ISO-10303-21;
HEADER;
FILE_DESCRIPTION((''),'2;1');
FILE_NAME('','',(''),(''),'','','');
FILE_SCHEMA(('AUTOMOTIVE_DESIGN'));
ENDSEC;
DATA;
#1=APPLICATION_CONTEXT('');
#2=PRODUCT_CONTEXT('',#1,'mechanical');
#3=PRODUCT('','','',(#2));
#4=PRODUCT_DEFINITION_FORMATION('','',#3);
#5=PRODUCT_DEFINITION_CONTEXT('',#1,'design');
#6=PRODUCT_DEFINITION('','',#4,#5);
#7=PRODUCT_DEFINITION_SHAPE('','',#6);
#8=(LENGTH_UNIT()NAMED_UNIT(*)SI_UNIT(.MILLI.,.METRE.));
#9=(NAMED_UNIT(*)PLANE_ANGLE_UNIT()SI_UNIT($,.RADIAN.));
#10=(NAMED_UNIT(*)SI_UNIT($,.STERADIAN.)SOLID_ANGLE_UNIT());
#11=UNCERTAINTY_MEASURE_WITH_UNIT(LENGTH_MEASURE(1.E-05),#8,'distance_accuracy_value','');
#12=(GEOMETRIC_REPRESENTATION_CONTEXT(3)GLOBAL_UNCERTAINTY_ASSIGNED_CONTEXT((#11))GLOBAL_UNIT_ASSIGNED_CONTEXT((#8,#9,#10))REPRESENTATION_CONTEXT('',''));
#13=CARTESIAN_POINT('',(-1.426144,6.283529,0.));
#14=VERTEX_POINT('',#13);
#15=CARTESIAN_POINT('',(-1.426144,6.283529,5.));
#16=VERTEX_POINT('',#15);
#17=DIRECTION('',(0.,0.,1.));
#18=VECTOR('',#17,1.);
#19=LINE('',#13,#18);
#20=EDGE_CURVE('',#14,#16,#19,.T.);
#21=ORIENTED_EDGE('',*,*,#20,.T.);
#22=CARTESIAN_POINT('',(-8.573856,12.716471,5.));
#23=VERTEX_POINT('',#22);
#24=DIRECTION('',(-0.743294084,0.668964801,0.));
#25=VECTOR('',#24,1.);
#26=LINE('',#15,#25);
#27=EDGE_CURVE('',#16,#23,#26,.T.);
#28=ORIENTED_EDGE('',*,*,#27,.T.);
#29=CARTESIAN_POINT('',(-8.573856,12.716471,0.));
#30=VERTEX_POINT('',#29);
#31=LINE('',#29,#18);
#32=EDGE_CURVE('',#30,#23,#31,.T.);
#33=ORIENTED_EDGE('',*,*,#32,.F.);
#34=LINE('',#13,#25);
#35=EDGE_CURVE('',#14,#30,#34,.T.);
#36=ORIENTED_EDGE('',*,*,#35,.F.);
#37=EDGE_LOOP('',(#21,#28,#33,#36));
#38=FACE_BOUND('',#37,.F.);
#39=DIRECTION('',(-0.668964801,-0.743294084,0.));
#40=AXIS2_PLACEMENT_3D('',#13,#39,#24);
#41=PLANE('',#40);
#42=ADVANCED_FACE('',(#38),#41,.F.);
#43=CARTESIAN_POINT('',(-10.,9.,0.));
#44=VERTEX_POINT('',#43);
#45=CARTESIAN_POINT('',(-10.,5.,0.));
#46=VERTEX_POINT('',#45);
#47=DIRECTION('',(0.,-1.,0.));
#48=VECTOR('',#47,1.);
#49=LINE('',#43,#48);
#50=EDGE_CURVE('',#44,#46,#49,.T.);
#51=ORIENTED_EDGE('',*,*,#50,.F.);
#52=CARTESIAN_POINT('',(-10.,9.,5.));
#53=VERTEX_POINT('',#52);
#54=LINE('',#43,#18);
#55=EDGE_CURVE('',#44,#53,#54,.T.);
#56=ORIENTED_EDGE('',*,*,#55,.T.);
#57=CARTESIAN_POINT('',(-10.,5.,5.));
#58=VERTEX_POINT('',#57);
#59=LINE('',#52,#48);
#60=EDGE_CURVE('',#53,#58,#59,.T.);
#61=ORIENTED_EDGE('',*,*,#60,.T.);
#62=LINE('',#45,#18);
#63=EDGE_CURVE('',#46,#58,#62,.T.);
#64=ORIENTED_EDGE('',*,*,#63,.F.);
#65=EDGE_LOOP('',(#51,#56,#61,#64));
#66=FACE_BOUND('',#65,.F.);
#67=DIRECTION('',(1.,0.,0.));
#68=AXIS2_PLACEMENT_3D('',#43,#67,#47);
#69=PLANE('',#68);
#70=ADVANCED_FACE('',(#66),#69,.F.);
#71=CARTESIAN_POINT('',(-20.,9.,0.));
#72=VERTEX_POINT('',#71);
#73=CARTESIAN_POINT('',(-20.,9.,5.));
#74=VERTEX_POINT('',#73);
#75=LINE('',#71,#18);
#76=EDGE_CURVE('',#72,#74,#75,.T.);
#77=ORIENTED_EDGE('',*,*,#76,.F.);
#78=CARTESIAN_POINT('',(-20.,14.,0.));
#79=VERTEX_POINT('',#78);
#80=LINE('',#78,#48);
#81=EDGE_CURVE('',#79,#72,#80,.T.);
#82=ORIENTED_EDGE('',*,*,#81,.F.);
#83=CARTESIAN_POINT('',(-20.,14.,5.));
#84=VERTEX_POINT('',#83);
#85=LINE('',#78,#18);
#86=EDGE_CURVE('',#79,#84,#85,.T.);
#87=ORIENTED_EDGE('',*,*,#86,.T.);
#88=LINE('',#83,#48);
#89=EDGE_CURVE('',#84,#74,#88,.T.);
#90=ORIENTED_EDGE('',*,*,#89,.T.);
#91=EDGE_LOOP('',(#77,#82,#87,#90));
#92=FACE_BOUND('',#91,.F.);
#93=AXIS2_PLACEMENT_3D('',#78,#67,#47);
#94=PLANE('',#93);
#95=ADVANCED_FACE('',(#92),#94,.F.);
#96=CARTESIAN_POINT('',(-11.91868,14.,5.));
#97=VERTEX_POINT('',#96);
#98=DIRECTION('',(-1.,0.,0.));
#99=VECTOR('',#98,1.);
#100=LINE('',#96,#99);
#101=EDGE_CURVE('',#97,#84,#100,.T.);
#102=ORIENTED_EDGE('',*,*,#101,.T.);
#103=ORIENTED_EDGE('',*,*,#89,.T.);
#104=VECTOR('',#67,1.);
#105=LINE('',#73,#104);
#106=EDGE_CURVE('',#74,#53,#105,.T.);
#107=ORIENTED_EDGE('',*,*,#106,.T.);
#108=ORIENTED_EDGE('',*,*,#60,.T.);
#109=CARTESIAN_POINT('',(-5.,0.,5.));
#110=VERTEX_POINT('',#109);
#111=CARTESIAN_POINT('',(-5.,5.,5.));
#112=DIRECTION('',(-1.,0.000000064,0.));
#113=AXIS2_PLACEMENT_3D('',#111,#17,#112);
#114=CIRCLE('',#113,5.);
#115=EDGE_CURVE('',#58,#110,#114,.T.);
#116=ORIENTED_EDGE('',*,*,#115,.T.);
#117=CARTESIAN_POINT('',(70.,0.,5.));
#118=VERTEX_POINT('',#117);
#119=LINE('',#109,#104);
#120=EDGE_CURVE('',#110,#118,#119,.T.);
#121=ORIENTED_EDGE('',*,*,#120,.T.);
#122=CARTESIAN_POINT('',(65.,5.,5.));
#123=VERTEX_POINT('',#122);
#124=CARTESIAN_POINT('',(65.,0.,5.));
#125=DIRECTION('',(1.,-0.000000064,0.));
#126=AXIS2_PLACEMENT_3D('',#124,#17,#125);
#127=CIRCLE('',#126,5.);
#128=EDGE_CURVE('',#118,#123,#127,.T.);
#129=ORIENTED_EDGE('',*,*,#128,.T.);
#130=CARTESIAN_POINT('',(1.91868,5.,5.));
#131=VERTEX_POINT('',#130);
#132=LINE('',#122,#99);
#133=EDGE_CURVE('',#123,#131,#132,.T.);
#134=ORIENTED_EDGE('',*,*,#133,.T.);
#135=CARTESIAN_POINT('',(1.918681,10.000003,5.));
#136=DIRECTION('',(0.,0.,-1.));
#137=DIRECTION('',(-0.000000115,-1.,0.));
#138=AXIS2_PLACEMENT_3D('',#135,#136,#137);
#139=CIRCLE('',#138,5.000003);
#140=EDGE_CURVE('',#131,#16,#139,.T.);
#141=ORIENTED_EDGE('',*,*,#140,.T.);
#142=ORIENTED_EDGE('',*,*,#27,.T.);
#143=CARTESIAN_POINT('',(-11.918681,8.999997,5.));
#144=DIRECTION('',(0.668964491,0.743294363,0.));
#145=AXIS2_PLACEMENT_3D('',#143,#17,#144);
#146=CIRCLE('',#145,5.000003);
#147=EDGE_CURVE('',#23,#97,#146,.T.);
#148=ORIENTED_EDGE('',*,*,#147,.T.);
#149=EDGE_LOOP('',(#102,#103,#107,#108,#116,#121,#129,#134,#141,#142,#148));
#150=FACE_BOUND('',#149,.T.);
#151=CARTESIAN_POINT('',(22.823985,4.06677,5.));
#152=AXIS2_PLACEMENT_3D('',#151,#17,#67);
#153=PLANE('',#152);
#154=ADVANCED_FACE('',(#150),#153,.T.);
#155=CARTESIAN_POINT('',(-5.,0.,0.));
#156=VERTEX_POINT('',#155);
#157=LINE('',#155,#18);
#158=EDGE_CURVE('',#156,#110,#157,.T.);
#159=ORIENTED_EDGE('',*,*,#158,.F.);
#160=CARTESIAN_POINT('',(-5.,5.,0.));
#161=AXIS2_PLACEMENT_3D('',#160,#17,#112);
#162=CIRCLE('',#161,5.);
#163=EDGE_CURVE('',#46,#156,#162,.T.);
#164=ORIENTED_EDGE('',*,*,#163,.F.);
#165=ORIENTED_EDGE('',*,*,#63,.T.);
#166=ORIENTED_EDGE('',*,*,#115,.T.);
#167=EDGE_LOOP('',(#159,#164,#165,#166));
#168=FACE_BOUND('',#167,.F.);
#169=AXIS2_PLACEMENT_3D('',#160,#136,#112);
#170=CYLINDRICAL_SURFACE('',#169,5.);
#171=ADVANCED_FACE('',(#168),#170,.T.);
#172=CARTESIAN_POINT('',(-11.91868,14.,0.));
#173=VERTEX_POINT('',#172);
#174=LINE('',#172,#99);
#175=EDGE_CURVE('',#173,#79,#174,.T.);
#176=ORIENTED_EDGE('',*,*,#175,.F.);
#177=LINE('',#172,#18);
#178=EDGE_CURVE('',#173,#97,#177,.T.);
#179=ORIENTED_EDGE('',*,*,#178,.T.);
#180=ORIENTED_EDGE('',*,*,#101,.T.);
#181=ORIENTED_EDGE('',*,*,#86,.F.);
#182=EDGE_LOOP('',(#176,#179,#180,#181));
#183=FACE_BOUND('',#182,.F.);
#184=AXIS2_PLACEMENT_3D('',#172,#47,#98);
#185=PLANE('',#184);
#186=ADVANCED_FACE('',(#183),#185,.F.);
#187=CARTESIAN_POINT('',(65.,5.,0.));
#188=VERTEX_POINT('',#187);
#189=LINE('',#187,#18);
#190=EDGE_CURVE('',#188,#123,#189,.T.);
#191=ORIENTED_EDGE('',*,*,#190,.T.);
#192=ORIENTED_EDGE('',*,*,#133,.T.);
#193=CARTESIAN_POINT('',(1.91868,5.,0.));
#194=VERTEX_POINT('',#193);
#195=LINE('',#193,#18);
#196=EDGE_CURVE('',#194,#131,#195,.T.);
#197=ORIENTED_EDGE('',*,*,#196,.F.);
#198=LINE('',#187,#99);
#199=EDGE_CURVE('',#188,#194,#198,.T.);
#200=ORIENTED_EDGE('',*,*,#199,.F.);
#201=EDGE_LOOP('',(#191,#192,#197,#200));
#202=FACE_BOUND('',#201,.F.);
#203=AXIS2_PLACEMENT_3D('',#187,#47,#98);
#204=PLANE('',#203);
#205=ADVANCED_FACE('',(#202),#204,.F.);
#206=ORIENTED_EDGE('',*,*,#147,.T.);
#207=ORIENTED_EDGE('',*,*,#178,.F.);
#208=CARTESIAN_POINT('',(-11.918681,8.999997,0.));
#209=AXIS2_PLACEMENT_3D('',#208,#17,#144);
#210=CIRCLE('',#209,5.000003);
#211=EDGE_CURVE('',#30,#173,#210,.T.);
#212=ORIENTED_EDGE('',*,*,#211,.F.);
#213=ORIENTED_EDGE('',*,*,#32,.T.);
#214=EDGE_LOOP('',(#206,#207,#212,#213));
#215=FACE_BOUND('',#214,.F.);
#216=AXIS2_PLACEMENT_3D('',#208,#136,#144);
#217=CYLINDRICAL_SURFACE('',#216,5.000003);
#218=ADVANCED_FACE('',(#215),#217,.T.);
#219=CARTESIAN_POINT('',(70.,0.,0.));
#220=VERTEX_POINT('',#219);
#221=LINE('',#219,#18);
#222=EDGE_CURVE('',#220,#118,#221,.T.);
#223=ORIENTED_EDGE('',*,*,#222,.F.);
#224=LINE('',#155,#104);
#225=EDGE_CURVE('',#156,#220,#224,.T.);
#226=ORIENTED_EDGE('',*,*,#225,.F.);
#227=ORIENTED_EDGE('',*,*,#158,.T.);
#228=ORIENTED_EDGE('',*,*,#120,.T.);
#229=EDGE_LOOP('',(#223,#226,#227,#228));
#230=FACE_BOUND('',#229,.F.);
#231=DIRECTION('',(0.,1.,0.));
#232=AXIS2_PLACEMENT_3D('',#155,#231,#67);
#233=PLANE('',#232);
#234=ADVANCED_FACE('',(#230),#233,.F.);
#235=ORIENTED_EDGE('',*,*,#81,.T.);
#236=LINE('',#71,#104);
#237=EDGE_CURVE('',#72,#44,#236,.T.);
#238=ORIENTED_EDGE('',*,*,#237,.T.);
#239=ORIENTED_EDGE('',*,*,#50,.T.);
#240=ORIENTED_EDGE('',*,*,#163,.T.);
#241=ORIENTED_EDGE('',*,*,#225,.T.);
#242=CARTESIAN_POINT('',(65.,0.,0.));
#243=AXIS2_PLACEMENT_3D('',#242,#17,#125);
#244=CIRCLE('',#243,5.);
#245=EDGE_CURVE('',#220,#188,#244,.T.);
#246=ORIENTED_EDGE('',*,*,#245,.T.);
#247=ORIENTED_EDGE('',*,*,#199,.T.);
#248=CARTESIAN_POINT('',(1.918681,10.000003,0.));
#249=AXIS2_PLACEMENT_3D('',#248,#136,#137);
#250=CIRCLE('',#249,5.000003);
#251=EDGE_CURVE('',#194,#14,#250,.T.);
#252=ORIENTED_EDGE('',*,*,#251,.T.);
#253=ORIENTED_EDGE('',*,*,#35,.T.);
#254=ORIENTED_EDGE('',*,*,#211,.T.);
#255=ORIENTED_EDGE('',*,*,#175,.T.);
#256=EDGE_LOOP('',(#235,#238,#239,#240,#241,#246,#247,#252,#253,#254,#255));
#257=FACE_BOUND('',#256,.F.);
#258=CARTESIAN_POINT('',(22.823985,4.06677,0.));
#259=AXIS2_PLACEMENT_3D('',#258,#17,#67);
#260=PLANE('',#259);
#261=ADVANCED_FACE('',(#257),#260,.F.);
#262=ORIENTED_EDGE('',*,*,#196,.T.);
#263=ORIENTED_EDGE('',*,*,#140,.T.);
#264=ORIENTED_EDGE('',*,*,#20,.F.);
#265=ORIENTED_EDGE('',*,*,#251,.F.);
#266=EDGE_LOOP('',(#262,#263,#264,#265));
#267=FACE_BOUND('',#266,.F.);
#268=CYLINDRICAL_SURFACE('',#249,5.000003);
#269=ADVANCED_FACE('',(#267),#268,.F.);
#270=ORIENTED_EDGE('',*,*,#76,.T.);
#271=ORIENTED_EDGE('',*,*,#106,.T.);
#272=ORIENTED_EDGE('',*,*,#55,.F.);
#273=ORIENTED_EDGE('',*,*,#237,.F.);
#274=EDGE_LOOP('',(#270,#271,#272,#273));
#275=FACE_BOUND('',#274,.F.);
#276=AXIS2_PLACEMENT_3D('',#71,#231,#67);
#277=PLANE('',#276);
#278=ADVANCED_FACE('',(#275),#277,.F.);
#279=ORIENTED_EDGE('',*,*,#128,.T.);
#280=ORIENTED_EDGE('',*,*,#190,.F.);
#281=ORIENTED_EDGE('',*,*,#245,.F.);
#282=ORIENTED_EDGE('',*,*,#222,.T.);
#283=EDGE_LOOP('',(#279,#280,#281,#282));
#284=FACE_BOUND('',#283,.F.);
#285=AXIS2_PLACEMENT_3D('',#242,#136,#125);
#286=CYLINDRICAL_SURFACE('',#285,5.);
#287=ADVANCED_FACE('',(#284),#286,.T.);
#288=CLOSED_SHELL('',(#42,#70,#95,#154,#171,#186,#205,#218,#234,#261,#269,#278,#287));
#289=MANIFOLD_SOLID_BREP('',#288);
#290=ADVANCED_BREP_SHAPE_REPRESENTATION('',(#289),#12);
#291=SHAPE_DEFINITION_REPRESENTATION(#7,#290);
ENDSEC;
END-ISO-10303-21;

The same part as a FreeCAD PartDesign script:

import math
import FreeCAD as App
import Part
import Sketcher

V = App.Vector

doc = App.newDocument("Part")
body = doc.addObject("PartDesign::Body", "Body")

sketch1 = body.newObject("Sketcher::SketchObject", "Sketch")
sketch1.AttachmentSupport = (doc.getObject("XY_Plane"), [""])
sketch1.MapMode = "FlatFace"
sketch1.addGeometry(Part.LineSegment(V(-11.9, 14, 0), V(-20, 14, 0)), False)
sketch1.addGeometry(Part.LineSegment(V(-20, 14, 0), V(-20, 9, 0)), False)
sketch1.addGeometry(Part.LineSegment(V(-20, 9, 0), V(-10, 9, 0)), False)
sketch1.addGeometry(Part.LineSegment(V(-10, 9, 0), V(-10, 5, 0)), False)
sketch1.addGeometry(Part.ArcOfCircle(Part.Circle(V(-5, 5, 0), V(0, 0, 1), 5), math.radians(180), math.radians(270)), False)
sketch1.addGeometry(Part.LineSegment(V(-5, 0, 0), V(70, 0, 0)), False)
sketch1.addGeometry(Part.ArcOfCircle(Part.Circle(V(65, 0, 0), V(0, 0, 1), 5), math.radians(0), math.radians(90)), False)
sketch1.addGeometry(Part.LineSegment(V(65, 5, 0), V(1.9, 5, 0)), False)
sketch1.addGeometry(Part.ArcOfCircle(Part.Circle(V(1.9, 10, 0), V(0, 0, 1), 5), math.radians(-132), math.radians(-90)), False)
sketch1.addGeometry(Part.LineSegment(V(-1.4, 6.3, 0), V(-8.6, 12.7, 0)), False)
sketch1.addGeometry(Part.ArcOfCircle(Part.Circle(V(-11.9, 9, 0), V(0, 0, 1), 5), math.radians(48), math.radians(90)), False)
sketch1.addConstraint(Sketcher.Constraint("Coincident", 0, 2, 1, 1))
sketch1.addConstraint(Sketcher.Constraint("Coincident", 1, 2, 2, 1))
sketch1.addConstraint(Sketcher.Constraint("Coincident", 2, 2, 3, 1))
sketch1.addConstraint(Sketcher.Constraint("Tangent", 3, 2, 4, 1))
sketch1.addConstraint(Sketcher.Constraint("Tangent", 4, 2, 5, 1))
sketch1.addConstraint(Sketcher.Constraint("Coincident", 5, 2, 6, 1))
sketch1.addConstraint(Sketcher.Constraint("Tangent", 6, 2, 7, 1))
sketch1.addConstraint(Sketcher.Constraint("Tangent", 7, 2, 8, 2))
sketch1.addConstraint(Sketcher.Constraint("Tangent", 8, 1, 9, 1))
sketch1.addConstraint(Sketcher.Constraint("Tangent", 9, 2, 10, 1))
sketch1.addConstraint(Sketcher.Constraint("Tangent", 10, 2, 0, 1))
sketch1.addConstraint(Sketcher.Constraint("Horizontal", 0))
sketch1.addConstraint(Sketcher.Constraint("Vertical", 1))
sketch1.addConstraint(Sketcher.Constraint("Horizontal", 2))
sketch1.addConstraint(Sketcher.Constraint("Vertical", 3))
sketch1.addConstraint(Sketcher.Constraint("Horizontal", 5))
sketch1.addConstraint(Sketcher.Constraint("Horizontal", 7))
sketch1.addConstraint(Sketcher.Constraint("Equal", 4, 6))
sketch1.addConstraint(Sketcher.Constraint("Equal", 8, 10))
sketch1.addConstraint(Sketcher.Constraint("PointOnObject", 6, 3, -1))
sketch1.addConstraint(Sketcher.Constraint("PointOnObject", 4, 2, -1))
sketch1.addConstraint(Sketcher.Constraint("Radius", 4, 5.0))
sketch1.addConstraint(Sketcher.Constraint("DistanceX", 2, 1, 2, 2, 10.0))
sketch1.addConstraint(Sketcher.Constraint("DistanceX", 5, 1, 5, 2, 75.0))
sketch1.addConstraint(Sketcher.Constraint("DistanceY", 1, 2, 1, 1, 5.0))
sketch1.addConstraint(Sketcher.Constraint("DistanceY", 3, 2, 3, 1, 4.0))
sketch1.addConstraint(Sketcher.Constraint("DistanceX", 4, 3, -1, 1, 5.0))
sketch1.addConstraint(Sketcher.Constraint("Radius", 8, 5.000003))
sketch1.addConstraint(Sketcher.Constraint("DistanceX", 0, 2, 0, 1, 8.08132))
sketch1.addConstraint(Sketcher.Constraint("DistanceX", 7, 2, 7, 1, 63.08132))
pad1 = body.newObject("PartDesign::Pad", "Pad")
pad1.Profile = sketch1
pad1.Length = 5

doc.recompute()
